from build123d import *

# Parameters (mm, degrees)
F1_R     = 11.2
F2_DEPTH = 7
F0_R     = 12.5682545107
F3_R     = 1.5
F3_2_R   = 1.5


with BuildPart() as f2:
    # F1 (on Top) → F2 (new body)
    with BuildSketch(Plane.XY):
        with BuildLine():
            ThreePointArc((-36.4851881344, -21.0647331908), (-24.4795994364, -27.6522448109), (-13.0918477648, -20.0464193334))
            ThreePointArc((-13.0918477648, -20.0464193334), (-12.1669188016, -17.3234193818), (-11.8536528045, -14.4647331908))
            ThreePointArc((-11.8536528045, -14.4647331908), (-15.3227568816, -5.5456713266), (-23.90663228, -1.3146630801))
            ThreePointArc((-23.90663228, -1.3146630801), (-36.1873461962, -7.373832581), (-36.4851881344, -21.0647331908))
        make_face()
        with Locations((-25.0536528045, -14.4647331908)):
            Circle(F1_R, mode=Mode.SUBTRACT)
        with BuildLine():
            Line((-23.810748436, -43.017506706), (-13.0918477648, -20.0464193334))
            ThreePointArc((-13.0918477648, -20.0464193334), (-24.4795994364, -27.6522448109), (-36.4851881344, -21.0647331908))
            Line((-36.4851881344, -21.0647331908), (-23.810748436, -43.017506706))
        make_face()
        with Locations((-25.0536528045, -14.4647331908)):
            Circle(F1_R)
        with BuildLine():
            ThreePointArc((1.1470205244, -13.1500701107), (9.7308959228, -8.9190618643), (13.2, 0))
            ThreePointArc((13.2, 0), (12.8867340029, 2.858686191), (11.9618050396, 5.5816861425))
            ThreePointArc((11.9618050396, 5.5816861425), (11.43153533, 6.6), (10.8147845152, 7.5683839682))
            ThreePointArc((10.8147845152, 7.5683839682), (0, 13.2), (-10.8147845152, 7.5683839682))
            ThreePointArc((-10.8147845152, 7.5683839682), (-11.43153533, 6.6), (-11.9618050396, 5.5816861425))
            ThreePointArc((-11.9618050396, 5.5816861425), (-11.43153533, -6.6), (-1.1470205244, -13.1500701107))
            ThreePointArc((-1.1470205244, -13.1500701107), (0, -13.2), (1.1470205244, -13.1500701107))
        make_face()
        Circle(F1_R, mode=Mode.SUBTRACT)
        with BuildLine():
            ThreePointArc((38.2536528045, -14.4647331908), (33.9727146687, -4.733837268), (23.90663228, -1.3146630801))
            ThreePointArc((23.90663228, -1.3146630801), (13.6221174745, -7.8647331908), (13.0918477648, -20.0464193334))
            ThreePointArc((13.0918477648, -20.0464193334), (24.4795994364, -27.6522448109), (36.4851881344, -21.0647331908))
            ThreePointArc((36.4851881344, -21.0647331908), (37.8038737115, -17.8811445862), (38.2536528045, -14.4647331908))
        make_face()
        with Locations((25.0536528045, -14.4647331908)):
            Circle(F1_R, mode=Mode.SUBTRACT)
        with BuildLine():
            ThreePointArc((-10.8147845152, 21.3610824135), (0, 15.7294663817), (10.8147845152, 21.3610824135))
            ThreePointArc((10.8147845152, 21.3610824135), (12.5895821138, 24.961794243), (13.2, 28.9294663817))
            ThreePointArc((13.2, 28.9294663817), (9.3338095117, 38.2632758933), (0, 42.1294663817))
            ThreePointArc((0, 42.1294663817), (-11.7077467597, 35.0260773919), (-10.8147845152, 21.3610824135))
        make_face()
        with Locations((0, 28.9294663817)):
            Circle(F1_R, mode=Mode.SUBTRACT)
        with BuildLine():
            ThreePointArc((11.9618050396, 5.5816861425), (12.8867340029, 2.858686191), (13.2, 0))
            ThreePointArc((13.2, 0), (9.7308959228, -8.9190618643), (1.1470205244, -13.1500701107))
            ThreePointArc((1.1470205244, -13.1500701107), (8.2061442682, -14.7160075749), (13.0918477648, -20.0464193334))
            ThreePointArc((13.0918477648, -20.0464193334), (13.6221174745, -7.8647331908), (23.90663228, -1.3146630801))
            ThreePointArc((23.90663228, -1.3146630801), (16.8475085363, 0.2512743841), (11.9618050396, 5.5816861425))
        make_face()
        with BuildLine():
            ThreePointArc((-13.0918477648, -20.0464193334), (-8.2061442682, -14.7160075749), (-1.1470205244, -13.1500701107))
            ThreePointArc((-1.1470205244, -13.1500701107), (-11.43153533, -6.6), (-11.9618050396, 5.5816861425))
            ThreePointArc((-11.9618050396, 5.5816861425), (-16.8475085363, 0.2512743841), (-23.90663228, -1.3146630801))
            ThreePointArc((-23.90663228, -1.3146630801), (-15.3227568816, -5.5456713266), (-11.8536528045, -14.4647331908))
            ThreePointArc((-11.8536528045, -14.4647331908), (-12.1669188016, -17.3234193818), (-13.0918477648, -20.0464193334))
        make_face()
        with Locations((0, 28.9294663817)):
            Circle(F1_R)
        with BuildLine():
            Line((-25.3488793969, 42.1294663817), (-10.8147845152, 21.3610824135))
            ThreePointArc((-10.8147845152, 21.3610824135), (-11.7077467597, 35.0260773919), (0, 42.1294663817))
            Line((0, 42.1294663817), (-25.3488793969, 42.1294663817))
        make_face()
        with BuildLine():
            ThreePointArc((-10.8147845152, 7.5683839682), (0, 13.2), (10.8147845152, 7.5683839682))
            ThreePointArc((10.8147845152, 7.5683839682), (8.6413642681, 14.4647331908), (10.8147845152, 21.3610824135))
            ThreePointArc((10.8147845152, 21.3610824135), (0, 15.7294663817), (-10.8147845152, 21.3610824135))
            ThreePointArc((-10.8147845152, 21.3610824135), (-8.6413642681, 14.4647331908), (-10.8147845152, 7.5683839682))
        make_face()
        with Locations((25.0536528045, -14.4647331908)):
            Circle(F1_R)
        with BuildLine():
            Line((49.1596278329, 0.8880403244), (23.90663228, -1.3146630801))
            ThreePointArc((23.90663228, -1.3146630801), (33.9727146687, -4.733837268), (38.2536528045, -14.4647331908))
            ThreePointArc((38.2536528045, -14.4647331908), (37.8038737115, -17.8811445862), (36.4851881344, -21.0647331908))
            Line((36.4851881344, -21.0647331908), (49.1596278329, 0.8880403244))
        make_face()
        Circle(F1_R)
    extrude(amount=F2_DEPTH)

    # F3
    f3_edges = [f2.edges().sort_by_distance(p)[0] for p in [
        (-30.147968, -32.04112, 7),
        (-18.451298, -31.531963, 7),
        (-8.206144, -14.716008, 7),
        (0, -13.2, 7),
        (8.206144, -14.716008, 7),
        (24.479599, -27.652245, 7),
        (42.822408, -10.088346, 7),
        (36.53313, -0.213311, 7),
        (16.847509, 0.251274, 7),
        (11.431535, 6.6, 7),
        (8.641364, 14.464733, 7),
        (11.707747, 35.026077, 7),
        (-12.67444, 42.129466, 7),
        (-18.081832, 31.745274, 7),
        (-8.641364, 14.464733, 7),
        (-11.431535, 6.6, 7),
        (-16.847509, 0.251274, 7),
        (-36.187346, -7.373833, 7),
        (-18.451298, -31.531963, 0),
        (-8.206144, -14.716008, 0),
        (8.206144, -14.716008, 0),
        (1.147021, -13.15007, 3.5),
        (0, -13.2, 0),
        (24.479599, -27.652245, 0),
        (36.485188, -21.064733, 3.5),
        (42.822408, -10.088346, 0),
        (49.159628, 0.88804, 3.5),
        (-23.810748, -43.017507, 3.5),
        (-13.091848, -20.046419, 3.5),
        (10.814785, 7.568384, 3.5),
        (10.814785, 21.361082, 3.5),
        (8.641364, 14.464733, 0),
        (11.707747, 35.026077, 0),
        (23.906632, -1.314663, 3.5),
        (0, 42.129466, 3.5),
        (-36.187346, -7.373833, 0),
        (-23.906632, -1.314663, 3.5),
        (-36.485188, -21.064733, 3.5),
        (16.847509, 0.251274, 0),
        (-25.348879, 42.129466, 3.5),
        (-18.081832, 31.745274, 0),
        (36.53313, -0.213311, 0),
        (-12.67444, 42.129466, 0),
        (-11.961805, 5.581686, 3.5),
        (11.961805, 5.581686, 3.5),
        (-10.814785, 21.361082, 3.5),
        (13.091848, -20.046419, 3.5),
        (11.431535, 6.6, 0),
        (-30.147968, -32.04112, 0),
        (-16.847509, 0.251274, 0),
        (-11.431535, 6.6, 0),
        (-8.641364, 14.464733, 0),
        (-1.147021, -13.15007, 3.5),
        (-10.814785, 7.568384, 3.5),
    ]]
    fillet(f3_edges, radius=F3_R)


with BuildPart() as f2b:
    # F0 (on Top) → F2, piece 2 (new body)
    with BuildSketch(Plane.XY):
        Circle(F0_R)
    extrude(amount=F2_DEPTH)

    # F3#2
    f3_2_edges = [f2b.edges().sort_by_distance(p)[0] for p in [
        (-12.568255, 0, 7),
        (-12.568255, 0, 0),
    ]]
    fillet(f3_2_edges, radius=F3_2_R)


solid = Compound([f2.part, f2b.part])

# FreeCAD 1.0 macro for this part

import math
import FreeCAD as App
import Part
import Sketcher
from FreeCAD import Vector
Q = App.Units.Quantity


def edges_at(feature, points):
    """Names of the edges that pass closest to the given points."""
    edges = feature.Shape.Edges
    near = lambda p: min(range(len(edges)), key=lambda i: edges[i].distToShape(Part.Vertex(*p))[0])
    return sorted({f"Edge{near(p) + 1}" for p in points})

doc = App.newDocument("Part")
params = doc.addObject("Spreadsheet::Sheet", "Params")
for row, (alias, value) in enumerate([
    ("sketch1_radius", "13.2 mm"),
    ("pad1_length", "7 mm"),
    ("fillet_radius", "1.5 mm"),
    ("pad2_length", "7 mm"),
    ("fillet2_radius", "1.5 mm"),
], start=1):
    params.set(f"A{row}", alias)
    params.set(f"B{row}", "=" + value)
    params.setAlias(f"B{row}", alias)

body = doc.addObject("PartDesign::Body", "Body")

sketch1 = body.newObject("Sketcher::SketchObject", "Sketch")
sketch1.AttachmentSupport = (doc.getObject("XY_Plane"), [""])
sketch1.MapMode = "FlatFace"
sketch1.addGeometry([
    Part.ArcOfCircle(Part.Circle(Vector(-25.053653, -14.464733, 0), Vector(0, 0, 1), 13.2), math.radians(85.014968), math.radians(210)),
    Part.LineSegment(Vector(-36.485188, -21.064733, 0), Vector(-23.810748, -43.017507, 0)),
    Part.LineSegment(Vector(-23.810748, -43.017507, 0), Vector(-13.091848, -20.046419, 0)),
    Part.ArcOfCircle(Part.Circle(Vector(-2.192191, -25.13248, 0), Vector(0, 0, 1), 12.027906), math.radians(85.014968), math.radians(154.985032)),
    Part.ArcOfCircle(Part.Circle(Vector(0, 0, 0), Vector(0, 0, 1), 13.2), math.radians(-94.985032), math.radians(-85.014968)),
    Part.ArcOfCircle(Part.Circle(Vector(2.192191, -25.13248, 0), Vector(0, 0, 1), 12.027906), math.radians(25.014968), math.radians(94.985032)),
    Part.ArcOfCircle(Part.Circle(Vector(25.053653, -14.464733, 0), Vector(0, 0, 1), 13.2), math.radians(-154.985032), math.radians(-30)),
    Part.LineSegment(Vector(36.485188, -21.064733, 0), Vector(49.159628, 0.88804, 0)),
    Part.LineSegment(Vector(49.159628, 0.88804, 0), Vector(23.906632, -1.314663, 0)),
    Part.ArcOfCircle(Part.Circle(Vector(22.861461, 10.667746, 0), Vector(0, 0, 1), 12.027906), math.radians(-154.985032), math.radians(-85.014968)),
    Part.ArcOfCircle(Part.Circle(Vector(0, 0, 0), Vector(0, 0, 1), 13.2), math.radians(25.014968), math.radians(34.985032)),
    Part.ArcOfCircle(Part.Circle(Vector(20.66927, 14.464733, 0), Vector(0, 0, 1), 12.027906), math.radians(145.014968), math.radians(214.985032)),
    Part.ArcOfCircle(Part.Circle(Vector(0, 28.929466, 0), Vector(0, 0, 1), 13.2), math.radians(-34.985032), math.radians(0)),
    Part.ArcOfCircle(Part.Circle(Vector(0, 28.929466, 0), Vector(0, 0, 1), 13.2), math.radians(0), math.radians(90)),
    Part.LineSegment(Vector(0, 42.129466, 0), Vector(-25.348879, 42.129466, 0)),
    Part.LineSegment(Vector(-25.348879, 42.129466, 0), Vector(-10.814785, 21.361082, 0)),
    Part.ArcOfCircle(Part.Circle(Vector(-20.66927, 14.464733, 0), Vector(0, 0, 1), 12.027906), math.radians(-34.985032), math.radians(34.985032)),
    Part.ArcOfCircle(Part.Circle(Vector(0, 0, 0), Vector(0, 0, 1), 13.2), math.radians(145.014968), math.radians(154.985032)),
    Part.ArcOfCircle(Part.Circle(Vector(-22.861461, 10.667746, 0), Vector(0, 0, 1), 12.027906), math.radians(-94.985032), math.radians(-25.014968)),
], False)
sketch1.addConstraint([
    Sketcher.Constraint("Tangent", 0, 2, 1, 1),
    Sketcher.Constraint("Coincident", 1, 2, 2, 1),
    Sketcher.Constraint("Tangent", 2, 2, 3, 2),
    Sketcher.Constraint("Tangent", 3, 1, 4, 1),
    Sketcher.Constraint("Tangent", 4, 2, 5, 2),
    Sketcher.Constraint("Tangent", 5, 1, 6, 1),
    Sketcher.Constraint("Tangent", 6, 2, 7, 1),
    Sketcher.Constraint("Coincident", 7, 2, 8, 1),
    Sketcher.Constraint("Tangent", 8, 2, 9, 2),
    Sketcher.Constraint("Tangent", 9, 1, 10, 1),
    Sketcher.Constraint("Tangent", 10, 2, 11, 2),
    Sketcher.Constraint("Tangent", 11, 1, 12, 1),
    Sketcher.Constraint("Tangent", 12, 2, 13, 1),
    Sketcher.Constraint("Tangent", 13, 2, 14, 1),
    Sketcher.Constraint("Coincident", 14, 2, 15, 1),
    Sketcher.Constraint("Tangent", 15, 2, 16, 2),
    Sketcher.Constraint("Tangent", 16, 1, 17, 1),
    Sketcher.Constraint("Tangent", 17, 2, 18, 2),
    Sketcher.Constraint("Tangent", 18, 1, 0, 1),
    Sketcher.Constraint("Horizontal", 14),
    Sketcher.Constraint("Coincident", 4, 3, -1, 1),
    Sketcher.Constraint("Coincident", 10, 3, -1, 1),
    Sketcher.Constraint("Coincident", 17, 3, -1, 1),
    Sketcher.Constraint("Equal", 0, 4),
    Sketcher.Constraint("Equal", 3, 5),
    Sketcher.Constraint("Equal", 4, 6),
    Sketcher.Constraint("Equal", 5, 9),
    Sketcher.Constraint("Equal", 6, 10),
    Sketcher.Constraint("Equal", 9, 11),
    Sketcher.Constraint("Equal", 10, 12),
    Sketcher.Constraint("Equal", 12, 13),
    Sketcher.Constraint("Equal", 11, 16),
    Sketcher.Constraint("Equal", 13, 17),
    Sketcher.Constraint("Equal", 16, 18),
    Sketcher.Constraint("Symmetric", 0, 3, 6, 3, -2),
    Sketcher.Constraint("Symmetric", 2, 2, 5, 1, -2),
    Sketcher.Constraint("Symmetric", 11, 1, 15, 2, -2),
    Sketcher.Constraint("Symmetric", 8, 2, 18, 1, -2),
    Sketcher.Constraint("PointOnObject", 12, 3, -2),
    Sketcher.Constraint("Horizontal", 0, 2, 6, 2),
    Sketcher.Constraint("Horizontal", 13, 3, 12, 2),
    Sketcher.Constraint("Equal", 2, 7),
    Sketcher.Constraint("Equal", 8, 15),
    Sketcher.Constraint("Radius", 0, Q("13.2 mm")),
    Sketcher.Constraint("Angle", 1, Q("-60 deg")),
    Sketcher.Constraint("Radius", 3, Q("12.027906 mm")),
    Sketcher.Constraint("DistanceX", 14, 2, 14, 1, Q("25.348879 mm")),
])
sketch1.setExpression("Constraints[43]", "Params.sketch1_radius")
pad1 = body.newObject("PartDesign::Pad", "Pad")
pad1.Profile = sketch1
pad1.setExpression("Length", "Params.pad1_length")
doc.recompute()

fillet = body.newObject("PartDesign::Fillet", "Fillet")
fillet.Base = (pad1, ["Edge1"])
fillet.UseAllEdges = True
fillet.setExpression("Radius", "Params.fillet_radius")
body2 = doc.addObject("PartDesign::Body", "Body001")

sketch2 = body2.newObject("Sketcher::SketchObject", "Sketch001")
sketch2.AttachmentSupport = (doc.getObject("XY_Plane001"), [""])
sketch2.MapMode = "FlatFace"
sketch2.addGeometry(Part.Circle(Vector(0, 0, 0), Vector(0, 0, 1), 12.568255), False)
sketch2.addConstraint([
    Sketcher.Constraint("Coincident", 0, 3, -1, 1),
    Sketcher.Constraint("Diameter", 0, Q("25.136509 mm")),
])
pad2 = body2.newObject("PartDesign::Pad", "Pad001")
pad2.Profile = sketch2
pad2.setExpression("Length", "Params.pad2_length")
doc.recompute()

fillet2 = body2.newObject("PartDesign::Fillet", "Fillet001")
fillet2.Base = (pad2, edges_at(pad2, [(-12.568, 0, 7), (-12.568, 0, 0)]))
fillet2.setExpression("Radius", "Params.fillet2_radius")

doc.recompute()
